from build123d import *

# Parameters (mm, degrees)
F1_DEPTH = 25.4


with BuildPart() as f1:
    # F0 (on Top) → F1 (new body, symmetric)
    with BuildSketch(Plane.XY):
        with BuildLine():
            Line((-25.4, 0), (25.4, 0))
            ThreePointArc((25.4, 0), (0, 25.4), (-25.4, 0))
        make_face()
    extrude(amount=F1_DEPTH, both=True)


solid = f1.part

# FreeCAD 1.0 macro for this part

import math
import FreeCAD as App
import Part
import Sketcher
Q = App.Units.Quantity

doc = App.newDocument("Part")
body = doc.addObject("PartDesign::Body", "Body")

sketch1 = body.newObject("Sketcher::SketchObject", "Sketch")
sketch1.AttachmentSupport = (doc.getObject("XY_Plane"), [""])
sketch1.MapMode = "FlatFace"
sketch1.addGeometry(Part.LineSegment(App.Vector(-25, 0, 0), App.Vector(25, 0, 0)), False)
sketch1.addGeometry(Part.ArcOfCircle(Part.Circle(App.Vector(0, 0, 0), App.Vector(0, 0, 1), 25), math.radians(0), math.radians(180)), False)
sketch1.addConstraint(Sketcher.Constraint("Coincident", 0, 1, 1, 2))
sketch1.addConstraint(Sketcher.Constraint("Coincident", 1, 1, 0, 2))
sketch1.addConstraint(Sketcher.Constraint("Horizontal", 0))
sketch1.addConstraint(Sketcher.Constraint("Coincident", 1, 3, -1, 1))
sketch1.addConstraint(Sketcher.Constraint("PointOnObject", 0, 1, -1))
sketch1.addConstraint(Sketcher.Constraint("Radius", 1, Q("1 in")))
pad1 = body.newObject("PartDesign::Pad", "Pad")
pad1.Profile = sketch1
pad1.Length = Q("2 in")
pad1.Midplane = True

doc.recompute()
